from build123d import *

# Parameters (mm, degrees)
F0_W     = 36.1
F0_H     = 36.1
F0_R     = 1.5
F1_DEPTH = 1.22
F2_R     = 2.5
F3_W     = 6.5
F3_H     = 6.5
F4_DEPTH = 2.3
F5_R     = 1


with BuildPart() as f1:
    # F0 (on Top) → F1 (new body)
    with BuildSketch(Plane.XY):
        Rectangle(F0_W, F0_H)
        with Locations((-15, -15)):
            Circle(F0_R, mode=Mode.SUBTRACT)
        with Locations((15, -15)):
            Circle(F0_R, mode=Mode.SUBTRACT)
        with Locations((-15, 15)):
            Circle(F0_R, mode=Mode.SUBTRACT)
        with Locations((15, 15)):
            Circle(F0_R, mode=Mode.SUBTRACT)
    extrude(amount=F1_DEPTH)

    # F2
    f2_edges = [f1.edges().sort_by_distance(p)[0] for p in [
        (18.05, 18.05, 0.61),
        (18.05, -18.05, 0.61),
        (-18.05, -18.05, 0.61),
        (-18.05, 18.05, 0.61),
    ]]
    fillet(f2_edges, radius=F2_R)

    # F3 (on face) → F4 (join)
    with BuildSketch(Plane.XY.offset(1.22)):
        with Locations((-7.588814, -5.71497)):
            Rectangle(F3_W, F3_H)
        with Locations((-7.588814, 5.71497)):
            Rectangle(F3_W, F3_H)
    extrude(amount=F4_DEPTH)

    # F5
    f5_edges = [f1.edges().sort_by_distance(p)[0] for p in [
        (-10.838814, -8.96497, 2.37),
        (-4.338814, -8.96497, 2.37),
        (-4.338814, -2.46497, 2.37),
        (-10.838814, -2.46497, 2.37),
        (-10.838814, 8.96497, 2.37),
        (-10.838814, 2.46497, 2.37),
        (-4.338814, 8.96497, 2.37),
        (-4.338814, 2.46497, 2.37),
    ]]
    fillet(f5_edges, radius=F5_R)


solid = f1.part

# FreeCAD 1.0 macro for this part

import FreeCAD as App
import Part
import Sketcher
from FreeCAD import Vector
Q = App.Units.Quantity


def edges_at(feature, points):
    """Names of the edges that pass closest to the given points."""
    edges = feature.Shape.Edges
    near = lambda p: min(range(len(edges)), key=lambda i: edges[i].distToShape(Part.Vertex(*p))[0])
    return sorted({f"Edge{near(p) + 1}" for p in points})


def add_polygon(sketch, points):
    """Adds a closed chain of lines whose ends are joined by coincident constraints."""
    first, n = sketch.GeometryCount, len(points)
    for a, b in zip(points, points[1:] + points[:1]):
        sketch.addGeometry(Part.LineSegment(App.Vector(*a, 0), App.Vector(*b, 0)), False)
    for i in range(n):
        sketch.addConstraint(Sketcher.Constraint("Coincident", first + i, 2, first + (i + 1) % n, 1))

doc = App.newDocument("Part")
body = doc.addObject("PartDesign::Body", "Body")

# Sketch on XY plane
sketch1 = body.newObject("Sketcher::SketchObject", "Sketch")
sketch1.AttachmentSupport = (doc.getObject("XY_Plane"), [""])
sketch1.MapMode = "FlatFace"
add_polygon(sketch1, [(-18.1, 18.1), (-18.1, -18.1), (18.1, -18.1), (18.1, 18.1)])  # lines 0-3
sketch1.addGeometry(Part.Circle(Vector(-15, -15, 0), Vector(0, 0, 1), 1.5), False)  # 4
sketch1.addGeometry(Part.Circle(Vector(15, -15, 0), Vector(0, 0, 1), 1.5), False)  # 5
sketch1.addGeometry(Part.Circle(Vector(-15, 15, 0), Vector(0, 0, 1), 1.5), False)  # 6
sketch1.addGeometry(Part.Circle(Vector(15, 15, 0), Vector(0, 0, 1), 1.5), False)  # 7
sketch1.addConstraint([
    Sketcher.Constraint("Vertical", 0),
    Sketcher.Constraint("Horizontal", 1),
    Sketcher.Constraint("Vertical", 2),
    Sketcher.Constraint("Horizontal", 3),
    Sketcher.Constraint("Equal", 4, 5),
    Sketcher.Constraint("Equal", 5, 6),
    Sketcher.Constraint("Equal", 6, 7),
    Sketcher.Constraint("Symmetric", 5, 3, 6, 3, -1, 1),
    Sketcher.Constraint("Symmetric", 4, 3, 7, 3, -1, 1),
    Sketcher.Constraint("Symmetric", 0, 2, 2, 2, -1, 1),
    Sketcher.Constraint("Symmetric", 4, 3, 5, 3, -2),
    Sketcher.Constraint("Equal", 3, 0),
    Sketcher.Constraint("Diameter", 4, Q("3 mm")),
    Sketcher.Constraint("DistanceX", 1, 1, 1, 2, Q("36.1 mm")),
    Sketcher.Constraint("DistanceX", 4, 3, -1, 1, Q("15 mm")),
    Sketcher.Constraint("DistanceY", 4, 3, -1, 1, Q("15 mm")),
])
pad1 = body.newObject("PartDesign::Pad", "Pad")
pad1.Profile = sketch1
pad1.Length = 1.22
doc.recompute()

fillet = body.newObject("PartDesign::Fillet", "Fillet")
fillet.Base = (pad1, edges_at(pad1, [
    (18.05, 18.05, 0.61),
    (18.05, -18.05, 0.61),
    (-18.05, -18.05, 0.61),
    (-18.05, 18.05, 0.61),
]))
fillet.Radius = 2.5

# Sketch on XY plane
sketch2 = body.newObject("Sketcher::SketchObject", "Sketch001")
sketch2.AttachmentSupport = (doc.getObject("XY_Plane"), [""])
sketch2.MapMode = "FlatFace"
sketch2.AttachmentOffset = App.Placement(Vector(0, 0, 1.22), App.Rotation())
add_polygon(sketch2, [(-11, -2), (-11, -9), (-4, -9), (-4, -2)])  # lines 0-3
add_polygon(sketch2, [(-11, 9), (-11, 2), (-4, 2), (-4, 9)])  # lines 4-7
sketch2.addConstraint([
    Sketcher.Constraint("Vertical", 0),
    Sketcher.Constraint("Horizontal", 1),
    Sketcher.Constraint("Vertical", 2),
    Sketcher.Constraint("Horizontal", 3),
    Sketcher.Constraint("Vertical", 4),
    Sketcher.Constraint("Horizontal", 5),
    Sketcher.Constraint("Vertical", 6),
    Sketcher.Constraint("Horizontal", 7),
    Sketcher.Constraint("Symmetric", 3, 2, 4, 2, -1),
    Sketcher.Constraint("Symmetric", 1, 2, 6, 2, -1),
    Sketcher.Constraint("Equal", 7, 0),
    Sketcher.Constraint("DistanceX", 1, 1, 1, 2, Q("6.5 mm")),
    Sketcher.Constraint("DistanceY", 0, 2, -1, 1, Q("8.96497 mm")),
    Sketcher.Constraint("DistanceX", 0, 2, -1, 1, Q("10.838814 mm")),
])
pad2 = body.newObject("PartDesign::Pad", "Pad001")
pad2.Profile = sketch2
pad2.Length = 2.3
doc.recompute()

fillet2 = body.newObject("PartDesign::Fillet", "Fillet001")
fillet2.Base = (pad2, edges_at(pad2, [
    (-10.839, -8.965, 2.37),
    (-4.339, -8.965, 2.37),
    (-4.339, -2.465, 2.37),
    (-10.839, -2.465, 2.37),
    (-10.839, 8.965, 2.37),
    (-10.839, 2.465, 2.37),
    (-4.339, 8.965, 2.37),
    (-4.339, 2.465, 2.37),
]))
fillet2.Radius = 1

doc.recompute()
